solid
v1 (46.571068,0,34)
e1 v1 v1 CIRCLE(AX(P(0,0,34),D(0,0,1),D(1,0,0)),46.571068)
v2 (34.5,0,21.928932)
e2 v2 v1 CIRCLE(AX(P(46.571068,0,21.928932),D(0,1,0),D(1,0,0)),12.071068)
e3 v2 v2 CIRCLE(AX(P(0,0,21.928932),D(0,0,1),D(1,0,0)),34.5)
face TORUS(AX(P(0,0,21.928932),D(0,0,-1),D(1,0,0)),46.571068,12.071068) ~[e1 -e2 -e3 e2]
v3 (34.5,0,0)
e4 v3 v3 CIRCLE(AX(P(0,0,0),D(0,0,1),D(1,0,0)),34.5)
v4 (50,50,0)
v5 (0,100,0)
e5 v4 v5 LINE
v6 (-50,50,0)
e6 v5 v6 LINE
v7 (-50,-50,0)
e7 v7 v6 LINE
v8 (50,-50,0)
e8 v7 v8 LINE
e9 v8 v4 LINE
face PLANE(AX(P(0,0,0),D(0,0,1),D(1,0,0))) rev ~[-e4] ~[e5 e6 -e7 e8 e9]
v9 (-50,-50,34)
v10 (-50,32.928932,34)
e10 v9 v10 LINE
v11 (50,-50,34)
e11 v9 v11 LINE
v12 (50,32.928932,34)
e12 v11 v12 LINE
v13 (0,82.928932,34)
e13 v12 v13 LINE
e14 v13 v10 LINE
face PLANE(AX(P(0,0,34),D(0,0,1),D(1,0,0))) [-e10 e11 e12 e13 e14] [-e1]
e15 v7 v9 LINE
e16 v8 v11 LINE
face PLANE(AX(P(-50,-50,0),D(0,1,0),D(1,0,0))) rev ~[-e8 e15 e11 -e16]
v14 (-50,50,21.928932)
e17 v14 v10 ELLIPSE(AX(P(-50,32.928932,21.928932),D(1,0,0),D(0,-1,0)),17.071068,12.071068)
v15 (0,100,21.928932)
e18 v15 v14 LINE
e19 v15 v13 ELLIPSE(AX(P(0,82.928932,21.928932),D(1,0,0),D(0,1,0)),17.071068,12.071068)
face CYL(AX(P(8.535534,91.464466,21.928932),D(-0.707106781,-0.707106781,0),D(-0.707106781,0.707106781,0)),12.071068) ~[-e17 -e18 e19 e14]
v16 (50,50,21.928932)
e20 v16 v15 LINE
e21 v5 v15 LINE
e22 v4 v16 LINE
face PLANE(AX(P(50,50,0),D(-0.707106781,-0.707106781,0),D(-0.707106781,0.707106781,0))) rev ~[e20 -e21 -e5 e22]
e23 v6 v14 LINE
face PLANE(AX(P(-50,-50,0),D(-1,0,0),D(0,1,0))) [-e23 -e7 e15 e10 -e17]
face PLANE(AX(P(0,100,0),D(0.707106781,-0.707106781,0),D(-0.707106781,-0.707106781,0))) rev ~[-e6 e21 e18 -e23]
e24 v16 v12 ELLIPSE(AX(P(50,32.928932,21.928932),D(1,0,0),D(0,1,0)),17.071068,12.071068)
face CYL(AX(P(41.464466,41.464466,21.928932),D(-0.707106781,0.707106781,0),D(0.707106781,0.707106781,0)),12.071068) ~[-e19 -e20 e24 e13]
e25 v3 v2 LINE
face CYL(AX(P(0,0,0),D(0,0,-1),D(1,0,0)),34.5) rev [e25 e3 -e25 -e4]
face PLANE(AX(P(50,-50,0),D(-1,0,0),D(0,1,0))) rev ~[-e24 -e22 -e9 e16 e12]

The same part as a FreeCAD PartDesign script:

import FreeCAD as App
import Part
import Sketcher
from FreeCAD import Vector


def edges_at(feature, points):
    """Names of the edges that pass closest to the given points."""
    edges = feature.Shape.Edges
    near = lambda p: min(range(len(edges)), key=lambda i: edges[i].distToShape(Part.Vertex(*p))[0])
    return sorted({f"Edge{near(p) + 1}" for p in points})

doc = App.newDocument("Part")
body = doc.addObject("PartDesign::Body", "Body")

# Sketch on XY plane
sketch1 = doc.addObject("Sketcher::SketchObject", "Sketch")
body.addObject(sketch1)
sketch1.AttachmentSupport = (doc.XY_Plane, [""])
sketch1.MapMode = "FlatFace"
sketch1.addGeometry(Part.LineSegment(Vector(-50, 50, 0), Vector(-50, -50, 0)), False)
sketch1.addGeometry(Part.LineSegment(Vector(-50, -50, 0), Vector(50, -50, 0)), False)
sketch1.addGeometry(Part.LineSegment(Vector(50, -50, 0), Vector(50, 50, 0)), False)
sketch1.addGeometry(Part.LineSegment(Vector(50, 50, 0), Vector(0, 100, 0)), False)
sketch1.addGeometry(Part.LineSegment(Vector(0, 100, 0), Vector(-50, 50, 0)), False)
sketch1.addGeometry(Part.Circle(Vector(0, 0, 0), Vector(0, 0, 1), 34), False)
sketch1.addConstraint(Sketcher.Constraint("Coincident", 0, 2, 1, 1))
sketch1.addConstraint(Sketcher.Constraint("Coincident", 1, 2, 2, 1))
sketch1.addConstraint(Sketcher.Constraint("Coincident", 2, 2, 3, 1))
sketch1.addConstraint(Sketcher.Constraint("Coincident", 3, 2, 4, 1))
sketch1.addConstraint(Sketcher.Constraint("Coincident", 4, 2, 0, 1))
sketch1.addConstraint(Sketcher.Constraint("Vertical", 0))
sketch1.addConstraint(Sketcher.Constraint("Horizontal", 1))
sketch1.addConstraint(Sketcher.Constraint("Vertical", 2))
sketch1.addConstraint(Sketcher.Constraint("Coincident", 5, 3, -1, 1))
sketch1.addConstraint(Sketcher.Constraint("Symmetric", 0, 2, 2, 2, -1, 1))
sketch1.addConstraint(Sketcher.Constraint("PointOnObject", 3, 2, -2))
sketch1.addConstraint(Sketcher.Constraint("Perpendicular", 3, 4))
sketch1.addConstraint(Sketcher.Constraint("Horizontal", 2, 2, 4, 2))
sketch1.addConstraint(Sketcher.Constraint("Equal", 1, 0))
sketch1.addConstraint(Sketcher.Constraint("Diameter", 5, 69.0))
sketch1.addConstraint(Sketcher.Constraint("DistanceX", 1, 1, 1, 2, 100.0))
pad1 = doc.addObject("PartDesign::Pad", "Pad")
body.addObject(pad1)
pad1.Profile = sketch1
pad1.Length = 34
doc.recompute()

fillet = doc.addObject("PartDesign::Fillet", "Fillet")
body.addObject(fillet)
fillet.Base = (pad1, edges_at(pad1, [(-34.5, 0, 34), (25, 75, 34), (-25, 75, 34)]))
fillet.Radius = 12.071068

doc.recompute()
